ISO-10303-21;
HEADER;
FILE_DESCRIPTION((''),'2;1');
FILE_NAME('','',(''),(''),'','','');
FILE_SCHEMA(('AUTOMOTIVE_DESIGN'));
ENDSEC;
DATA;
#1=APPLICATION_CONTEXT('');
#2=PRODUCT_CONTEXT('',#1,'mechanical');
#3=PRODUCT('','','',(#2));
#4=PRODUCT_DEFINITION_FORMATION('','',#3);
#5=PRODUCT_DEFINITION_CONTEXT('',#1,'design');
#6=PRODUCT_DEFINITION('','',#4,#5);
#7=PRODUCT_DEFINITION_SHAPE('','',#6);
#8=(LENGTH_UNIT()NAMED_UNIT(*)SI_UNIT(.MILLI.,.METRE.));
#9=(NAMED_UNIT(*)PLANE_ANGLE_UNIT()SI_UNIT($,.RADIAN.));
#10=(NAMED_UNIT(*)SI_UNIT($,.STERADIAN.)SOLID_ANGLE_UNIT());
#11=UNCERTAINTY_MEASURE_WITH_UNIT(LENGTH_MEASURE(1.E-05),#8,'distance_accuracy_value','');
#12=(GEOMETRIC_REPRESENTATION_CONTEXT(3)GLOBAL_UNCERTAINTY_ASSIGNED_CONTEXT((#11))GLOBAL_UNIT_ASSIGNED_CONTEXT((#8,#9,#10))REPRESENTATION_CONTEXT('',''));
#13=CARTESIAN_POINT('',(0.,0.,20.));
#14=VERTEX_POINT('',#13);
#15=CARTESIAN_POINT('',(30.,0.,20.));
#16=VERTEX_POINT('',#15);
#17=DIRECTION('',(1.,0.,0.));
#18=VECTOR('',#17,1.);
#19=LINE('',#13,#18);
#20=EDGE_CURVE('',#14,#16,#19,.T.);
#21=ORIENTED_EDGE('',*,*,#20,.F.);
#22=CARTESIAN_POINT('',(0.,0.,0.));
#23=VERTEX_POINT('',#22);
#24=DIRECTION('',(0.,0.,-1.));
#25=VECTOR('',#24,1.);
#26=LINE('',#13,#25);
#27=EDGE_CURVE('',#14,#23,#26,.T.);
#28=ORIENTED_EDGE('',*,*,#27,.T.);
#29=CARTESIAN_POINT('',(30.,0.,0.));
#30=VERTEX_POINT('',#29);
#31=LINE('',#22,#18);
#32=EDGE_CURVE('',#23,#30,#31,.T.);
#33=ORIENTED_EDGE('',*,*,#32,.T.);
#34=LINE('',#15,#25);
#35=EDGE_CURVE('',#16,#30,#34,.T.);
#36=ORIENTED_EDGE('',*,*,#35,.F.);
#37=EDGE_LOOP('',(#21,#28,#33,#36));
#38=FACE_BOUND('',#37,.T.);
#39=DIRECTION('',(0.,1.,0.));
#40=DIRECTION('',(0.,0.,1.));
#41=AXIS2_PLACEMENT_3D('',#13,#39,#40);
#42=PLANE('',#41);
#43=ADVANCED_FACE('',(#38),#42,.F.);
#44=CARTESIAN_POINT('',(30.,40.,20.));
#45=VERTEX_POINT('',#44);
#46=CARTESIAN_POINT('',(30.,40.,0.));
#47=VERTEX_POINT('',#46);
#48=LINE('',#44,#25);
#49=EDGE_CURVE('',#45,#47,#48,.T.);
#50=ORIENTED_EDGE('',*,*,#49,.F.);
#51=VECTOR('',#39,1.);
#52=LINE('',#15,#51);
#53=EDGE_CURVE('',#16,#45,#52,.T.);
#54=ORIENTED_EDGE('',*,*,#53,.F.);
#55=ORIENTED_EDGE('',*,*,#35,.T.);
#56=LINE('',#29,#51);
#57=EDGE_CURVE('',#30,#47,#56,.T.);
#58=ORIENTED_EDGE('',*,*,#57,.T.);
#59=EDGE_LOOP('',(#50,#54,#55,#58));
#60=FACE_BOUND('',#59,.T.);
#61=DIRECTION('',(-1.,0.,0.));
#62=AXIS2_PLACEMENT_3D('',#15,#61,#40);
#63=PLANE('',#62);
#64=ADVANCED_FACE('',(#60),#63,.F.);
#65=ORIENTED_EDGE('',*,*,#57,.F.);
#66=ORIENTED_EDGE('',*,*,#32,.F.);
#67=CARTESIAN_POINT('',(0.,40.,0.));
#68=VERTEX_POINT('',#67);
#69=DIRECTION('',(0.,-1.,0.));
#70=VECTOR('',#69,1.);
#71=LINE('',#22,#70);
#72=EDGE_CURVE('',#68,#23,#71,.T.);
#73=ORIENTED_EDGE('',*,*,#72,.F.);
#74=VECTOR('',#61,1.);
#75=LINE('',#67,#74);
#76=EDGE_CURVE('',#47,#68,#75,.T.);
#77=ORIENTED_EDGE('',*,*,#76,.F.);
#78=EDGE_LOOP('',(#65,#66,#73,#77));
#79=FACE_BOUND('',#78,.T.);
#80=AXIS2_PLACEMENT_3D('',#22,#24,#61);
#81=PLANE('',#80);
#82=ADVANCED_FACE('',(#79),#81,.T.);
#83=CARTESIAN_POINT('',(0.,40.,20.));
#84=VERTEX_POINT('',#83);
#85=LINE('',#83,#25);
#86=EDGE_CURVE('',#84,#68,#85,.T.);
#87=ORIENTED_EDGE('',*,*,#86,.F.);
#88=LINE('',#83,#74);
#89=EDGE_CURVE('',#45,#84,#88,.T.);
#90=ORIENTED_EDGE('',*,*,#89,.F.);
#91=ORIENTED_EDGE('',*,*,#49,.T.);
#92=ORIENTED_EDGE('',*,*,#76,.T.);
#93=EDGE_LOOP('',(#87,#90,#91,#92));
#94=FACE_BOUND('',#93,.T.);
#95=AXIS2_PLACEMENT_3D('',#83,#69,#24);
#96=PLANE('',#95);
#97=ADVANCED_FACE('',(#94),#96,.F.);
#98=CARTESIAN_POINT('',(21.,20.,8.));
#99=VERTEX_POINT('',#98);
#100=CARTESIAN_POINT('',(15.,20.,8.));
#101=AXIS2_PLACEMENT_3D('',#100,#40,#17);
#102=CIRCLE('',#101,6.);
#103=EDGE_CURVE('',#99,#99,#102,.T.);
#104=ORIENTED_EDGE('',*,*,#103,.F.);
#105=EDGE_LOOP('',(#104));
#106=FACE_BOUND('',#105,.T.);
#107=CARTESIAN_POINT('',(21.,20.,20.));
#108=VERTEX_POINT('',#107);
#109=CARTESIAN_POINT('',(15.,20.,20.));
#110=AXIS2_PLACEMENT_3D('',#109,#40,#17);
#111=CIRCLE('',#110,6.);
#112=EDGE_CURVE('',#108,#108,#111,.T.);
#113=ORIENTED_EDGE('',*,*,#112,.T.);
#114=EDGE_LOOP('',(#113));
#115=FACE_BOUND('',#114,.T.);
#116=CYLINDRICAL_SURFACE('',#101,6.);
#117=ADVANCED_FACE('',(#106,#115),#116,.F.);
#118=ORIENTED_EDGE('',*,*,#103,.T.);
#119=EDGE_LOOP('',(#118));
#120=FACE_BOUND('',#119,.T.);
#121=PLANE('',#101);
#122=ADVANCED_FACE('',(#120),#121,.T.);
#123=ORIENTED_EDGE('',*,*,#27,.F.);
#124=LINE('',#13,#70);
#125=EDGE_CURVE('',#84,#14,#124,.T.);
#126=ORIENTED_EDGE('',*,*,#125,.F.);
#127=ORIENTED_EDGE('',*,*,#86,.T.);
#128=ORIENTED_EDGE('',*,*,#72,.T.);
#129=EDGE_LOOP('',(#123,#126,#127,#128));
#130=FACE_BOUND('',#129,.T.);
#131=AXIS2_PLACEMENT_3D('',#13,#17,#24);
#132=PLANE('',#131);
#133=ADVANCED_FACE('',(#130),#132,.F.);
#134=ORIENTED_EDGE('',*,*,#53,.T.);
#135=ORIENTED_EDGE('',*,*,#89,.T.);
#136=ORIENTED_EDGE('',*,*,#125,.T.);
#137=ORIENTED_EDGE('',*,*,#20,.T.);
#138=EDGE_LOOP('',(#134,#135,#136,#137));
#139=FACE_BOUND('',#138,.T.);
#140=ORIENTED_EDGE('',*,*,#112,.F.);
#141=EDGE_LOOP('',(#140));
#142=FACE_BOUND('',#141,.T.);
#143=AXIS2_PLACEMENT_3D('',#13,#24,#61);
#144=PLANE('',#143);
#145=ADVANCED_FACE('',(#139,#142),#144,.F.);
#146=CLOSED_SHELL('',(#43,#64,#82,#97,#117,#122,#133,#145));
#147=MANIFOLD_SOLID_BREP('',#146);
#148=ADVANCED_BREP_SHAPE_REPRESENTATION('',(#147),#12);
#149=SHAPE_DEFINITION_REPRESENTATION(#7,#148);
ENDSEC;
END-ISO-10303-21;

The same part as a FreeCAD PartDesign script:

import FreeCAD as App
import Part
import Sketcher

V = App.Vector
Q = App.Units.Quantity

doc = App.newDocument("Part")
body = doc.addObject("PartDesign::Body", "Body")

# Sketch on XY plane
sketch1 = body.newObject("Sketcher::SketchObject", "Sketch")
sketch1.AttachmentSupport = (doc.getObject("XY_Plane"), [""])
sketch1.MapMode = "FlatFace"
sketch1.addGeometry([
    Part.LineSegment(V(0, 40, 0), V(0, 0, 0)),
    Part.LineSegment(V(0, 0, 0), V(30, 0, 0)),
    Part.LineSegment(V(30, 0, 0), V(30, 40, 0)),
    Part.LineSegment(V(30, 40, 0), V(0, 40, 0)),
], False)
sketch1.addConstraint([
    Sketcher.Constraint("Coincident", 0, 2, 1, 1),
    Sketcher.Constraint("Coincident", 1, 2, 2, 1),
    Sketcher.Constraint("Coincident", 2, 2, 3, 1),
    Sketcher.Constraint("Coincident", 3, 2, 0, 1),
    Sketcher.Constraint("Vertical", 0),
    Sketcher.Constraint("Horizontal", 1),
    Sketcher.Constraint("Vertical", 2),
    Sketcher.Constraint("Horizontal", 3),
    Sketcher.Constraint("Coincident", 0, 2, -1, 1),
    Sketcher.Constraint("DistanceX", 1, 1, 1, 2, Q("30 mm")),
    Sketcher.Constraint("DistanceY", 0, 2, 0, 1, Q("40 mm")),
])
pad1 = body.newObject("PartDesign::Pad", "Pad")
pad1.Profile = sketch1
pad1.Length = 20

# Sketch on XY plane
sketch2 = body.newObject("Sketcher::SketchObject", "Sketch001")
sketch2.AttachmentSupport = (doc.getObject("XY_Plane"), [""])
sketch2.MapMode = "FlatFace"
sketch2.AttachmentOffset = App.Placement(V(0, 0, 20), App.Rotation())
sketch2.addGeometry(Part.Circle(V(15, 20, 0), V(0, 0, 1), 6), False)
sketch2.addConstraint([
    Sketcher.Constraint("Diameter", 0, Q("12 mm")),
    Sketcher.Constraint("DistanceX", -1, 1, 0, 3, Q("15 mm")),
    Sketcher.Constraint("DistanceY", -1, 1, 0, 3, Q("20 mm")),
])
pocket1 = body.newObject("PartDesign::Pocket", "Pocket")
pocket1.Profile = sketch2
pocket1.Length = 12

doc.recompute()
